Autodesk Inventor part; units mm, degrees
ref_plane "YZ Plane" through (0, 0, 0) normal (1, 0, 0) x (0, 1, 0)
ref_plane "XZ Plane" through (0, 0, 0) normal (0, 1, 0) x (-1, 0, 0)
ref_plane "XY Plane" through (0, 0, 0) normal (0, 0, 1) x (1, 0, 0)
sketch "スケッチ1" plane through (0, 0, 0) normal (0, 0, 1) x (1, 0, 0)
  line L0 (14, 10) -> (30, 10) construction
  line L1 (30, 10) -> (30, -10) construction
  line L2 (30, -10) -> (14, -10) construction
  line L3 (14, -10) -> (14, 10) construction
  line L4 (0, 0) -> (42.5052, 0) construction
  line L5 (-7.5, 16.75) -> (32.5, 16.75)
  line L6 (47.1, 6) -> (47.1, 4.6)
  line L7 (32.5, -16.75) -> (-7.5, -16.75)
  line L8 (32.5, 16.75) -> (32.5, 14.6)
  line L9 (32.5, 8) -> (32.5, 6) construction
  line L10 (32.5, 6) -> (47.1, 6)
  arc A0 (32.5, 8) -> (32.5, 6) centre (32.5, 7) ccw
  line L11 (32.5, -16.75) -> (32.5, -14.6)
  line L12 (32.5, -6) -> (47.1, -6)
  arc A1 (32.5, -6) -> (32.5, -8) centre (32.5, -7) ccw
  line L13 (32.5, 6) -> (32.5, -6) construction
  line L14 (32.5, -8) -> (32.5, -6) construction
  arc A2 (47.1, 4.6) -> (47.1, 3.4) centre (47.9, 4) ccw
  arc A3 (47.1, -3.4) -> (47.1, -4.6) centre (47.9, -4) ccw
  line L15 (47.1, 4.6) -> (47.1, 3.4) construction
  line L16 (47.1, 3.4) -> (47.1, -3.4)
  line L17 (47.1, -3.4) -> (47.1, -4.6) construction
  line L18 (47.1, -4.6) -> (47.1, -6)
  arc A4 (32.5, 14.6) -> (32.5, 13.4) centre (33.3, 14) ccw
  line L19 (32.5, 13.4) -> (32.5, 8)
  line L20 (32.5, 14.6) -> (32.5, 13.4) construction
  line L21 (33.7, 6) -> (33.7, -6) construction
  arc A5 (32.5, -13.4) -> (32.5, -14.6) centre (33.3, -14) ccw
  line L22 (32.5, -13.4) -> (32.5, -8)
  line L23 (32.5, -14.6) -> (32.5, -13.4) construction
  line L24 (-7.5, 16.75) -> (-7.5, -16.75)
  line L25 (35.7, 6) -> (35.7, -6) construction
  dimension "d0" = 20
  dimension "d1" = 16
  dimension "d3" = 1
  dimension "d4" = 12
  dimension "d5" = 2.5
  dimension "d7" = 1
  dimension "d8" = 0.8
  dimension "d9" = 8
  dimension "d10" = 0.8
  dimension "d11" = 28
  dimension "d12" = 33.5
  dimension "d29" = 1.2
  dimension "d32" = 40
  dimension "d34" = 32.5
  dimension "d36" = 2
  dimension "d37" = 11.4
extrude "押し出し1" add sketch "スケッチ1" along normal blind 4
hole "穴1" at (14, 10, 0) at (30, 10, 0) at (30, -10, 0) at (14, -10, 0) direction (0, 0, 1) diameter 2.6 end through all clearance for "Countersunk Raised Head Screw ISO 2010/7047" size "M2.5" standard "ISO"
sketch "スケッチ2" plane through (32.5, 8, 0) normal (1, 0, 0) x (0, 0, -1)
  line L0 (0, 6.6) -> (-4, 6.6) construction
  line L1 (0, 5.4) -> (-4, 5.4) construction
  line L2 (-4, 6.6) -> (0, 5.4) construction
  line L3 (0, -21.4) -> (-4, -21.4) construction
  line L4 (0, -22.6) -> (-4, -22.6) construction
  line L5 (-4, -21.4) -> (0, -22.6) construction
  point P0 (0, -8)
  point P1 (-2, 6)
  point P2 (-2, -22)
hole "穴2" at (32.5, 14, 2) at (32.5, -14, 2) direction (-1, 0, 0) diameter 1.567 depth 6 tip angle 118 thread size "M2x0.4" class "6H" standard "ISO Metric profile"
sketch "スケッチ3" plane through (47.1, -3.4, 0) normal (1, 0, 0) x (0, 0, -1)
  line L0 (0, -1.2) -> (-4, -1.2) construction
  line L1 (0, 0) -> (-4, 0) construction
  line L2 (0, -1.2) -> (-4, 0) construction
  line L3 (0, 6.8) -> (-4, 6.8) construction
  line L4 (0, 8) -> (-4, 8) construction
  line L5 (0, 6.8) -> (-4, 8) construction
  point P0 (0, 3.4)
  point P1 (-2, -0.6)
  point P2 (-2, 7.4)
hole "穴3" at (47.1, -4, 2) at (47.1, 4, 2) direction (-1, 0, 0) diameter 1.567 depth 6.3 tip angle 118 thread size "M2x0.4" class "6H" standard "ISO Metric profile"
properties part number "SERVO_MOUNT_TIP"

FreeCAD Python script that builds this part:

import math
import FreeCAD as App
import Part
import Sketcher
from FreeCAD import Vector
Q = App.Units.Quantity

doc = App.newDocument("Part")
body = doc.addObject("PartDesign::Body", "Body")

# Sketch on XY plane
sketch1 = body.newObject("Sketcher::SketchObject", "Sketch")
sketch1.AttachmentSupport = (doc.getObject("XY_Plane"), [""])
sketch1.MapMode = "FlatFace"
sketch1.addGeometry([
    Part.LineSegment(Vector(32.5, 16.8, 0), Vector(-7.5, 16.8, 0)),  # 0
    Part.LineSegment(Vector(-7.5, 16.8, 0), Vector(-7.5, -16.8, 0)),  # 1
    Part.LineSegment(Vector(-7.5, -16.8, 0), Vector(32.5, -16.8, 0)),  # 2
    Part.LineSegment(Vector(32.5, -16.8, 0), Vector(32.5, -14.6, 0)),  # 3
    Part.ArcOfCircle(Part.Circle(Vector(33.3, -14, 0), Vector(0, 0, 1), 1), math.radians(143), math.radians(217)),  # 4
    Part.LineSegment(Vector(32.5, -13.4, 0), Vector(32.5, -8, 0)),  # 5
    Part.ArcOfCircle(Part.Circle(Vector(32.5, -7, 0), Vector(0, 0, 1), 1), math.radians(90), math.radians(270)),  # 6
    Part.LineSegment(Vector(32.5, -6, 0), Vector(47.1, -6, 0)),  # 7
    Part.LineSegment(Vector(47.1, -6, 0), Vector(47.1, -4.6, 0)),  # 8
    Part.ArcOfCircle(Part.Circle(Vector(47.9, -4, 0), Vector(0, 0, 1), 1), math.radians(143), math.radians(217)),  # 9
    Part.LineSegment(Vector(47.1, -3.4, 0), Vector(47.1, 3.4, 0)),  # 10
    Part.ArcOfCircle(Part.Circle(Vector(47.9, 4, 0), Vector(0, 0, 1), 1), math.radians(143), math.radians(217)),  # 11
    Part.LineSegment(Vector(47.1, 4.6, 0), Vector(47.1, 6, 0)),  # 12
    Part.LineSegment(Vector(47.1, 6, 0), Vector(32.5, 6, 0)),  # 13
    Part.ArcOfCircle(Part.Circle(Vector(32.5, 7, 0), Vector(0, 0, 1), 1), math.radians(90), math.radians(270)),  # 14
    Part.LineSegment(Vector(32.5, 8, 0), Vector(32.5, 13.4, 0)),  # 15
    Part.ArcOfCircle(Part.Circle(Vector(33.3, 14, 0), Vector(0, 0, 1), 1), math.radians(143), math.radians(217)),  # 16
    Part.LineSegment(Vector(32.5, 14.6, 0), Vector(32.5, 16.8, 0)),  # 17
], False)
sketch1.addConstraint([
    Sketcher.Constraint("Coincident", 0, 2, 1, 1),
    Sketcher.Constraint("Coincident", 1, 2, 2, 1),
    Sketcher.Constraint("Coincident", 2, 2, 3, 1),
    Sketcher.Constraint("Coincident", 3, 2, 4, 2),
    Sketcher.Constraint("Coincident", 4, 1, 5, 1),
    Sketcher.Constraint("Coincident", 5, 2, 6, 2),
    Sketcher.Constraint("Tangent", 6, 1, 7, 1),
    Sketcher.Constraint("Coincident", 7, 2, 8, 1),
    Sketcher.Constraint("Coincident", 8, 2, 9, 2),
    Sketcher.Constraint("Coincident", 9, 1, 10, 1),
    Sketcher.Constraint("Coincident", 10, 2, 11, 2),
    Sketcher.Constraint("Coincident", 11, 1, 12, 1),
    Sketcher.Constraint("Coincident", 12, 2, 13, 1),
    Sketcher.Constraint("Tangent", 13, 2, 14, 2),
    Sketcher.Constraint("Coincident", 14, 1, 15, 1),
    Sketcher.Constraint("Coincident", 15, 2, 16, 2),
    Sketcher.Constraint("Coincident", 16, 1, 17, 1),
    Sketcher.Constraint("Coincident", 17, 2, 0, 1),
    Sketcher.Constraint("Horizontal", 0),
    Sketcher.Constraint("Vertical", 1),
    Sketcher.Constraint("Horizontal", 2),
    Sketcher.Constraint("Vertical", 3),
    Sketcher.Constraint("Vertical", 5),
    Sketcher.Constraint("Horizontal", 7),
    Sketcher.Constraint("Vertical", 8),
    Sketcher.Constraint("Vertical", 10),
    Sketcher.Constraint("Vertical", 12),
    Sketcher.Constraint("Horizontal", 13),
    Sketcher.Constraint("Vertical", 15),
    Sketcher.Constraint("Vertical", 17),
    Sketcher.Constraint("Equal", 4, 6),
    Sketcher.Constraint("Equal", 6, 9),
    Sketcher.Constraint("Equal", 9, 11),
    Sketcher.Constraint("Equal", 11, 14),
    Sketcher.Constraint("Equal", 14, 16),
    Sketcher.Constraint("Symmetric", 9, 3, 11, 3, -1),
    Sketcher.Constraint("Symmetric", 6, 3, 14, 3, -1),
    Sketcher.Constraint("Symmetric", 4, 3, 16, 3, -1),
    Sketcher.Constraint("Symmetric", 2, 2, 17, 2, -1),
    Sketcher.Constraint("Vertical", 14, 3, 2, 2),
    Sketcher.Constraint("Vertical", 3, 2, 4, 1),
    Sketcher.Constraint("Vertical", 8, 2, 9, 1),
    Sketcher.Constraint("Vertical", 10, 2, 11, 1),
    Sketcher.Constraint("Vertical", 13, 2, 14, 1),
    Sketcher.Constraint("Radius", 4, Q("1 mm")),
    Sketcher.Constraint("DistanceX", 0, 2, 0, 1, Q("40 mm")),
    Sketcher.Constraint("DistanceY", 1, 2, 1, 1, Q("33.5 mm")),
    Sketcher.Constraint("DistanceY", 5, 2, -1, 1, Q("8 mm")),
    Sketcher.Constraint("DistanceY", 9, 3, 11, 3, Q("8 mm")),
    Sketcher.Constraint("DistanceY", 4, 3, 16, 3, Q("28 mm")),
    Sketcher.Constraint("DistanceX", -1, 1, 6, 3, Q("32.5 mm")),
    Sketcher.Constraint("DistanceX", 6, 3, 4, 3, Q("0.8 mm")),
    Sketcher.Constraint("DistanceX", 7, 2, 9, 3, Q("0.8 mm")),
    Sketcher.Constraint("DistanceX", 7, 1, 7, 2, Q("14.6 mm")),
])
pad1 = body.newObject("PartDesign::Pad", "Pad")
pad1.Profile = sketch1
pad1.Length = 4

# Sketch on XY plane
sketch2 = body.newObject("Sketcher::SketchObject", "Sketch001")
sketch2.AttachmentSupport = (doc.getObject("XY_Plane"), [""])
sketch2.MapMode = "FlatFace"
sketch2.addGeometry([
    Part.Circle(Vector(14, 10, 0), Vector(0, 0, 1), 1.3),
    Part.Circle(Vector(30, 10, 0), Vector(0, 0, 1), 1.3),
    Part.Circle(Vector(30, -10, 0), Vector(0, 0, 1), 1.3),
    Part.Circle(Vector(14, -10, 0), Vector(0, 0, 1), 1.3),
], False)
sketch2.addConstraint([
    Sketcher.Constraint("Equal", 0, 1),
    Sketcher.Constraint("Equal", 1, 2),
    Sketcher.Constraint("Equal", 2, 3),
    Sketcher.Constraint("Symmetric", 1, 3, 2, 3, -1),
    Sketcher.Constraint("Symmetric", 0, 3, 3, 3, -1),
    Sketcher.Constraint("Horizontal", 0, 3, 1, 3),
    Sketcher.Constraint("Diameter", 0, Q("2.6 mm")),
    Sketcher.Constraint("DistanceX", -1, 1, 0, 3, Q("14 mm")),
    Sketcher.Constraint("DistanceY", -1, 1, 0, 3, Q("10 mm")),
    Sketcher.Constraint("DistanceX", -1, 1, 1, 3, Q("30 mm")),
])
doc.recompute()
hole = body.newObject("PartDesign::Hole", "Hole")
hole.Profile = sketch2
hole.ThreadType = "None"
hole.Diameter = 2.6
hole.DepthType = "ThroughAll"
hole.Reversed = True

# Sketch on YZ plane
sketch3 = body.newObject("Sketcher::SketchObject", "Sketch002")
sketch3.AttachmentSupport = (doc.getObject("YZ_Plane"), [""])
sketch3.MapMode = "FlatFace"
sketch3.AttachmentOffset = App.Placement(Vector(0, 0, 32.5), App.Rotation())
sketch3.addGeometry([
    Part.Circle(Vector(14, 2, 0), Vector(0, 0, 1), 0.8),
    Part.Circle(Vector(-14, 2, 0), Vector(0, 0, 1), 0.8),
], False)
sketch3.addConstraint([
    Sketcher.Constraint("Equal", 0, 1),
    Sketcher.Constraint("Symmetric", 0, 3, 1, 3, -2),
    Sketcher.Constraint("Diameter", 0, Q("1.567 mm")),
    Sketcher.Constraint("DistanceX", -1, 1, 0, 3, Q("14 mm")),
    Sketcher.Constraint("DistanceY", -1, 1, 0, 3, Q("2 mm")),
])
doc.recompute()
hole2 = body.newObject("PartDesign::Hole", "Hole001")
hole2.Profile = sketch3
hole2.ThreadType = "None"
hole2.Diameter = 1.567
hole2.DepthType = "Dimension"
hole2.Depth = 6
hole2.DrillPoint = "Angled"
hole2.DrillPointAngle = 118

# Sketch on YZ plane
sketch4 = body.newObject("Sketcher::SketchObject", "Sketch003")
sketch4.AttachmentSupport = (doc.getObject("YZ_Plane"), [""])
sketch4.MapMode = "FlatFace"
sketch4.AttachmentOffset = App.Placement(Vector(0, 0, 47.1), App.Rotation())
sketch4.addGeometry([
    Part.Circle(Vector(-4, 2, 0), Vector(0, 0, 1), 0.8),
    Part.Circle(Vector(4, 2, 0), Vector(0, 0, 1), 0.8),
], False)
sketch4.addConstraint([
    Sketcher.Constraint("Equal", 0, 1),
    Sketcher.Constraint("Symmetric", 0, 3, 1, 3, -2),
    Sketcher.Constraint("Diameter", 0, Q("1.567 mm")),
    Sketcher.Constraint("DistanceX", 0, 3, -1, 1, Q("4 mm")),
    Sketcher.Constraint("DistanceY", -1, 1, 0, 3, Q("2 mm")),
])
doc.recompute()
hole3 = body.newObject("PartDesign::Hole", "Hole002")
hole3.Profile = sketch4
hole3.ThreadType = "None"
hole3.Diameter = 1.567
hole3.DepthType = "Dimension"
hole3.Depth = 6.3
hole3.DrillPoint = "Angled"
hole3.DrillPointAngle = 118

doc.recompute()
